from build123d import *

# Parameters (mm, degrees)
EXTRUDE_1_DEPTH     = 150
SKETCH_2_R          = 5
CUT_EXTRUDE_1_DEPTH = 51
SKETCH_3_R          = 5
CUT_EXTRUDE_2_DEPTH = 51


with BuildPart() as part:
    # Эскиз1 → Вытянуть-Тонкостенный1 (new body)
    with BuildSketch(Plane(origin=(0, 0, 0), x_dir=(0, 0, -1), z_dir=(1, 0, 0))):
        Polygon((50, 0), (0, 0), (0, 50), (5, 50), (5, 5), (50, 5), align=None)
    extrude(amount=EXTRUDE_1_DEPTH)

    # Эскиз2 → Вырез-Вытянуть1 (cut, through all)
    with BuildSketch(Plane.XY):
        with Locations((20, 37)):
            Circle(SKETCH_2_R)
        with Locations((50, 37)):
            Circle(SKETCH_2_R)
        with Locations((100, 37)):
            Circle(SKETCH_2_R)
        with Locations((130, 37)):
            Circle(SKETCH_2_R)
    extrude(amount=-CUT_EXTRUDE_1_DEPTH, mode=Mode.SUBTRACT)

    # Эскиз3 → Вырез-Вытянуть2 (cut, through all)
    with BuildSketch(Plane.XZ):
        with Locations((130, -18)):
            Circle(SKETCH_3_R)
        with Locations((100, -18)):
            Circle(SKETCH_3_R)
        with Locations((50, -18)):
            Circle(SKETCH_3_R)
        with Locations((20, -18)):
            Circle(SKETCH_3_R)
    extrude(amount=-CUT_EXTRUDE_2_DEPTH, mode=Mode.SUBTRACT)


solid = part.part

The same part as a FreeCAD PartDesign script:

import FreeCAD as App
import Part
import Sketcher

V = App.Vector
Q = App.Units.Quantity


def add_polygon(sketch, points):
    """Adds a closed chain of lines whose ends are joined by coincident constraints."""
    first, n = sketch.GeometryCount, len(points)
    for a, b in zip(points, points[1:] + points[:1]):
        sketch.addGeometry(Part.LineSegment(App.Vector(*a, 0), App.Vector(*b, 0)), False)
    for i in range(n):
        sketch.addConstraint(Sketcher.Constraint("Coincident", first + i, 2, first + (i + 1) % n, 1))

doc = App.newDocument("Part")
body = doc.addObject("PartDesign::Body", "Body")

# Sketch on YZ plane
sketch1 = body.newObject("Sketcher::SketchObject", "Sketch")
sketch1.AttachmentSupport = (doc.getObject("YZ_Plane"), [""])
sketch1.MapMode = "FlatFace"
add_polygon(sketch1, [(0, 0), (0, -50), (5, -50), (5, -5), (50, -5), (50, 0)])  # lines 0-5
sketch1.addConstraint(Sketcher.Constraint("Vertical", 0))
sketch1.addConstraint(Sketcher.Constraint("Horizontal", 1))
sketch1.addConstraint(Sketcher.Constraint("Vertical", 2))
sketch1.addConstraint(Sketcher.Constraint("Horizontal", 3))
sketch1.addConstraint(Sketcher.Constraint("Vertical", 4))
sketch1.addConstraint(Sketcher.Constraint("Horizontal", 5))
sketch1.addConstraint(Sketcher.Constraint("Coincident", 5, 2, -1, 1))
sketch1.addConstraint(Sketcher.Constraint("Equal", 5, 0))
sketch1.addConstraint(Sketcher.Constraint("Equal", 3, 2))
sketch1.addConstraint(Sketcher.Constraint("DistanceX", 1, 1, 1, 2, Q("5 mm")))
sketch1.addConstraint(Sketcher.Constraint("DistanceX", 3, 1, 3, 2, Q("45 mm")))
pad1 = body.newObject("PartDesign::Pad", "Pad")
pad1.Profile = sketch1
pad1.Length = 150

# Sketch on XY plane
sketch2 = body.newObject("Sketcher::SketchObject", "Sketch001")
sketch2.AttachmentSupport = (doc.getObject("XY_Plane"), [""])
sketch2.MapMode = "FlatFace"
sketch2.addGeometry(Part.Circle(V(20, 37, 0), V(0, 0, 1), 5), False)
sketch2.addGeometry(Part.Circle(V(50, 37, 0), V(0, 0, 1), 5), False)
sketch2.addGeometry(Part.Circle(V(100, 37, 0), V(0, 0, 1), 5), False)
sketch2.addGeometry(Part.Circle(V(130, 37, 0), V(0, 0, 1), 5), False)
sketch2.addConstraint(Sketcher.Constraint("Equal", 0, 1))
sketch2.addConstraint(Sketcher.Constraint("Equal", 1, 2))
sketch2.addConstraint(Sketcher.Constraint("Equal", 2, 3))
sketch2.addConstraint(Sketcher.Constraint("Horizontal", 0, 3, 1, 3))
sketch2.addConstraint(Sketcher.Constraint("Horizontal", 1, 3, 2, 3))
sketch2.addConstraint(Sketcher.Constraint("Horizontal", 2, 3, 3, 3))
sketch2.addConstraint(Sketcher.Constraint("Diameter", 0, Q("10 mm")))
sketch2.addConstraint(Sketcher.Constraint("DistanceX", -1, 1, 0, 3, Q("20 mm")))
sketch2.addConstraint(Sketcher.Constraint("DistanceY", -1, 1, 0, 3, Q("37 mm")))
sketch2.addConstraint(Sketcher.Constraint("DistanceX", -1, 1, 1, 3, Q("50 mm")))
sketch2.addConstraint(Sketcher.Constraint("DistanceX", -1, 1, 2, 3, Q("100 mm")))
sketch2.addConstraint(Sketcher.Constraint("DistanceX", -1, 1, 3, 3, Q("130 mm")))
pocket1 = body.newObject("PartDesign::Pocket", "Pocket")
pocket1.Profile = sketch2
pocket1.Type = "ThroughAll"

# Sketch on XZ plane
sketch3 = body.newObject("Sketcher::SketchObject", "Sketch002")
sketch3.AttachmentSupport = (doc.getObject("XZ_Plane"), [""])
sketch3.MapMode = "FlatFace"
sketch3.addGeometry(Part.Circle(V(130, -18, 0), V(0, 0, 1), 5), False)
sketch3.addGeometry(Part.Circle(V(100, -18, 0), V(0, 0, 1), 5), False)
sketch3.addGeometry(Part.Circle(V(50, -18, 0), V(0, 0, 1), 5), False)
sketch3.addGeometry(Part.Circle(V(20, -18, 0), V(0, 0, 1), 5), False)
sketch3.addConstraint(Sketcher.Constraint("Equal", 0, 1))
sketch3.addConstraint(Sketcher.Constraint("Equal", 1, 2))
sketch3.addConstraint(Sketcher.Constraint("Equal", 2, 3))
sketch3.addConstraint(Sketcher.Constraint("Horizontal", 0, 3, 1, 3))
sketch3.addConstraint(Sketcher.Constraint("Horizontal", 1, 3, 2, 3))
sketch3.addConstraint(Sketcher.Constraint("Horizontal", 2, 3, 3, 3))
sketch3.addConstraint(Sketcher.Constraint("Diameter", 0, Q("10 mm")))
sketch3.addConstraint(Sketcher.Constraint("DistanceX", -1, 1, 0, 3, Q("130 mm")))
sketch3.addConstraint(Sketcher.Constraint("DistanceY", 0, 3, -1, 1, Q("18 mm")))
sketch3.addConstraint(Sketcher.Constraint("DistanceX", -1, 1, 1, 3, Q("100 mm")))
sketch3.addConstraint(Sketcher.Constraint("DistanceX", -1, 1, 2, 3, Q("50 mm")))
sketch3.addConstraint(Sketcher.Constraint("DistanceX", -1, 1, 3, 3, Q("20 mm")))
pocket2 = body.newObject("PartDesign::Pocket", "Pocket001")
pocket2.Profile = sketch3
pocket2.Type = "ThroughAll"

doc.recompute()
